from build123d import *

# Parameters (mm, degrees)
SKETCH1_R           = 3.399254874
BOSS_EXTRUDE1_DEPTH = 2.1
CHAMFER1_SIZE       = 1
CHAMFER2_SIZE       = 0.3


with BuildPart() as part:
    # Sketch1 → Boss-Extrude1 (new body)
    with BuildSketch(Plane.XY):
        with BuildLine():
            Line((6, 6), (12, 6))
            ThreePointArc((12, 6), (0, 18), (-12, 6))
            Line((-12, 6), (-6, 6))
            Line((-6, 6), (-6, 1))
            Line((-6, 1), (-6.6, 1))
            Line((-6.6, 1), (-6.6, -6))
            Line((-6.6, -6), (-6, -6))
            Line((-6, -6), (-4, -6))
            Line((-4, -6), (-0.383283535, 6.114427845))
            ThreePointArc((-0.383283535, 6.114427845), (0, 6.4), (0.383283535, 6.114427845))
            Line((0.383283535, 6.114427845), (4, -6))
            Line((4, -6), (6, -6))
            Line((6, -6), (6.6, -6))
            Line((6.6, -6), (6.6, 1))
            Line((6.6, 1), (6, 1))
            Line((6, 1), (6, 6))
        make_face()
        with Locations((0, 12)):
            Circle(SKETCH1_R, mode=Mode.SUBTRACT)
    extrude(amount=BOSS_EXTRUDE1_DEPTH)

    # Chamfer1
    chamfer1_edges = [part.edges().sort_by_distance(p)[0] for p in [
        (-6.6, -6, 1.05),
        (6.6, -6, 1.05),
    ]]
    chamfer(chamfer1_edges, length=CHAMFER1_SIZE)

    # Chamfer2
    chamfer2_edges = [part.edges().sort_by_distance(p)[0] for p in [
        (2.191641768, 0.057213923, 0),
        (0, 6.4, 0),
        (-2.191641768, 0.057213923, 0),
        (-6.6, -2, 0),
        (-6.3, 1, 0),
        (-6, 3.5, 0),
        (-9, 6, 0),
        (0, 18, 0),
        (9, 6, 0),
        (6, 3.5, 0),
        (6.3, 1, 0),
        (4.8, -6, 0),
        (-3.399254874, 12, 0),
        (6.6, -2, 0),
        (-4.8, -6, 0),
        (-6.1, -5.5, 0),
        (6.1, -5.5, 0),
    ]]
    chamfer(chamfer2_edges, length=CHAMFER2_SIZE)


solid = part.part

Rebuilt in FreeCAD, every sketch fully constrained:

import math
import FreeCAD as App
import Part
import Sketcher

V = App.Vector


def edges_at(feature, points):
    """Names of the edges that pass closest to the given points."""
    edges = feature.Shape.Edges
    near = lambda p: min(range(len(edges)), key=lambda i: edges[i].distToShape(Part.Vertex(*p))[0])
    return sorted({f"Edge{near(p) + 1}" for p in points})

doc = App.newDocument("Part")
body = doc.addObject("PartDesign::Body", "Body")

# Sketch on XY plane
sketch1 = body.newObject("Sketcher::SketchObject", "Sketch")
sketch1.AttachmentSupport = (doc.getObject("XY_Plane"), [""])
sketch1.MapMode = "FlatFace"
sketch1.addGeometry(Part.LineSegment(V(6, 6, 0), V(12, 6, 0)), False)
sketch1.addGeometry(Part.ArcOfCircle(Part.Circle(V(0, 6, 0), V(0, 0, 1), 12), math.radians(0), math.radians(180)), False)
sketch1.addGeometry(Part.LineSegment(V(-12, 6, 0), V(-6, 6, 0)), False)
sketch1.addGeometry(Part.LineSegment(V(-6, 6, 0), V(-6, 1, 0)), False)
sketch1.addGeometry(Part.LineSegment(V(-6, 1, 0), V(-6.6, 1, 0)), False)
sketch1.addGeometry(Part.LineSegment(V(-6.6, 1, 0), V(-6.6, -6, 0)), False)
sketch1.addGeometry(Part.LineSegment(V(-6.6, -6, 0), V(-4, -6, 0)), False)
sketch1.addGeometry(Part.LineSegment(V(-4, -6, 0), V(-0.38, 6.11, 0)), False)
sketch1.addGeometry(Part.ArcOfCircle(Part.Circle(V(0, 6, 0), V(0, 0, 1), 0.4), math.radians(17), math.radians(163)), False)
sketch1.addGeometry(Part.LineSegment(V(0.38, 6.11, 0), V(4, -6, 0)), False)
sketch1.addGeometry(Part.LineSegment(V(4, -6, 0), V(6.6, -6, 0)), False)
sketch1.addGeometry(Part.LineSegment(V(6.6, -6, 0), V(6.6, 1, 0)), False)
sketch1.addGeometry(Part.LineSegment(V(6.6, 1, 0), V(6, 1, 0)), False)
sketch1.addGeometry(Part.LineSegment(V(6, 1, 0), V(6, 6, 0)), False)
sketch1.addGeometry(Part.Circle(V(0, 12, 0), V(0, 0, 1), 3.4), False)
sketch1.addConstraint(Sketcher.Constraint("Coincident", 0, 2, 1, 1))
sketch1.addConstraint(Sketcher.Constraint("Coincident", 1, 2, 2, 1))
sketch1.addConstraint(Sketcher.Constraint("Coincident", 2, 2, 3, 1))
sketch1.addConstraint(Sketcher.Constraint("Coincident", 3, 2, 4, 1))
sketch1.addConstraint(Sketcher.Constraint("Coincident", 4, 2, 5, 1))
sketch1.addConstraint(Sketcher.Constraint("Coincident", 5, 2, 6, 1))
sketch1.addConstraint(Sketcher.Constraint("Coincident", 6, 2, 7, 1))
sketch1.addConstraint(Sketcher.Constraint("Tangent", 7, 2, 8, 2))
sketch1.addConstraint(Sketcher.Constraint("Tangent", 8, 1, 9, 1))
sketch1.addConstraint(Sketcher.Constraint("Coincident", 9, 2, 10, 1))
sketch1.addConstraint(Sketcher.Constraint("Coincident", 10, 2, 11, 1))
sketch1.addConstraint(Sketcher.Constraint("Coincident", 11, 2, 12, 1))
sketch1.addConstraint(Sketcher.Constraint("Coincident", 12, 2, 13, 1))
sketch1.addConstraint(Sketcher.Constraint("Coincident", 13, 2, 0, 1))
sketch1.addConstraint(Sketcher.Constraint("Horizontal", 0))
sketch1.addConstraint(Sketcher.Constraint("Horizontal", 2))
sketch1.addConstraint(Sketcher.Constraint("Vertical", 3))
sketch1.addConstraint(Sketcher.Constraint("Horizontal", 4))
sketch1.addConstraint(Sketcher.Constraint("Vertical", 5))
sketch1.addConstraint(Sketcher.Constraint("Horizontal", 6))
sketch1.addConstraint(Sketcher.Constraint("Horizontal", 10))
sketch1.addConstraint(Sketcher.Constraint("Vertical", 11))
sketch1.addConstraint(Sketcher.Constraint("Horizontal", 12))
sketch1.addConstraint(Sketcher.Constraint("Vertical", 13))
sketch1.addConstraint(Sketcher.Constraint("Coincident", 8, 3, 1, 3))
sketch1.addConstraint(Sketcher.Constraint("Symmetric", 0, 2, 1, 2, -2))
sketch1.addConstraint(Sketcher.Constraint("Symmetric", 6, 2, 9, 2, -2))
sketch1.addConstraint(Sketcher.Constraint("Symmetric", 4, 2, 11, 2, -2))
sketch1.addConstraint(Sketcher.Constraint("PointOnObject", 14, 3, -2))
sketch1.addConstraint(Sketcher.Constraint("Horizontal", 8, 3, 0, 2))
sketch1.addConstraint(Sketcher.Constraint("Equal", 0, 2))
sketch1.addConstraint(Sketcher.Constraint("Radius", 1, 12.0))
sketch1.addConstraint(Sketcher.Constraint("Radius", 8, 0.4))
sketch1.addConstraint(Sketcher.Constraint("DistanceX", 0, 1, 0, 2, 6.0))
sketch1.addConstraint(Sketcher.Constraint("DistanceY", 3, 2, 3, 1, 5.0))
sketch1.addConstraint(Sketcher.Constraint("DistanceY", 5, 2, 5, 1, 7.0))
sketch1.addConstraint(Sketcher.Constraint("DistanceX", 4, 2, 4, 1, 0.6))
sketch1.addConstraint(Sketcher.Constraint("DistanceX", 6, 1, 6, 2, 2.6))
sketch1.addConstraint(Sketcher.Constraint("DistanceY", -1, 1, 1, 3, 6.0))
sketch1.addConstraint(Sketcher.Constraint("DistanceY", -1, 1, 14, 3, 12.0))
sketch1.addConstraint(Sketcher.Constraint("Diameter", 14, 6.79851))
pad1 = body.newObject("PartDesign::Pad", "Pad")
pad1.Profile = sketch1
pad1.Length = 2.1
doc.recompute()

chamfer = body.newObject("PartDesign::Chamfer", "Chamfer")
chamfer.Base = (pad1, edges_at(pad1, [(-6.6, -6, 1.05), (6.6, -6, 1.05)]))
chamfer.Size = 1
doc.recompute()

chamfer2 = body.newObject("PartDesign::Chamfer", "Chamfer001")
chamfer2.Base = (chamfer, edges_at(chamfer, [
    (2.192, 0.057, 0),
    (0, 6.4, 0),
    (-2.192, 0.057, 0),
    (-6.6, -2, 0),
    (-6.3, 1, 0),
    (-6, 3.5, 0),
    (-9, 6, 0),
    (0, 18, 0),
    (9, 6, 0),
    (6, 3.5, 0),
    (6.3, 1, 0),
    (4.8, -6, 0),
    (-3.399, 12, 0),
    (6.6, -2, 0),
    (-4.8, -6, 0),
    (-6.1, -5.5, 0),
    (6.1, -5.5, 0),
]))
chamfer2.Size = 0.3

doc.recompute()
